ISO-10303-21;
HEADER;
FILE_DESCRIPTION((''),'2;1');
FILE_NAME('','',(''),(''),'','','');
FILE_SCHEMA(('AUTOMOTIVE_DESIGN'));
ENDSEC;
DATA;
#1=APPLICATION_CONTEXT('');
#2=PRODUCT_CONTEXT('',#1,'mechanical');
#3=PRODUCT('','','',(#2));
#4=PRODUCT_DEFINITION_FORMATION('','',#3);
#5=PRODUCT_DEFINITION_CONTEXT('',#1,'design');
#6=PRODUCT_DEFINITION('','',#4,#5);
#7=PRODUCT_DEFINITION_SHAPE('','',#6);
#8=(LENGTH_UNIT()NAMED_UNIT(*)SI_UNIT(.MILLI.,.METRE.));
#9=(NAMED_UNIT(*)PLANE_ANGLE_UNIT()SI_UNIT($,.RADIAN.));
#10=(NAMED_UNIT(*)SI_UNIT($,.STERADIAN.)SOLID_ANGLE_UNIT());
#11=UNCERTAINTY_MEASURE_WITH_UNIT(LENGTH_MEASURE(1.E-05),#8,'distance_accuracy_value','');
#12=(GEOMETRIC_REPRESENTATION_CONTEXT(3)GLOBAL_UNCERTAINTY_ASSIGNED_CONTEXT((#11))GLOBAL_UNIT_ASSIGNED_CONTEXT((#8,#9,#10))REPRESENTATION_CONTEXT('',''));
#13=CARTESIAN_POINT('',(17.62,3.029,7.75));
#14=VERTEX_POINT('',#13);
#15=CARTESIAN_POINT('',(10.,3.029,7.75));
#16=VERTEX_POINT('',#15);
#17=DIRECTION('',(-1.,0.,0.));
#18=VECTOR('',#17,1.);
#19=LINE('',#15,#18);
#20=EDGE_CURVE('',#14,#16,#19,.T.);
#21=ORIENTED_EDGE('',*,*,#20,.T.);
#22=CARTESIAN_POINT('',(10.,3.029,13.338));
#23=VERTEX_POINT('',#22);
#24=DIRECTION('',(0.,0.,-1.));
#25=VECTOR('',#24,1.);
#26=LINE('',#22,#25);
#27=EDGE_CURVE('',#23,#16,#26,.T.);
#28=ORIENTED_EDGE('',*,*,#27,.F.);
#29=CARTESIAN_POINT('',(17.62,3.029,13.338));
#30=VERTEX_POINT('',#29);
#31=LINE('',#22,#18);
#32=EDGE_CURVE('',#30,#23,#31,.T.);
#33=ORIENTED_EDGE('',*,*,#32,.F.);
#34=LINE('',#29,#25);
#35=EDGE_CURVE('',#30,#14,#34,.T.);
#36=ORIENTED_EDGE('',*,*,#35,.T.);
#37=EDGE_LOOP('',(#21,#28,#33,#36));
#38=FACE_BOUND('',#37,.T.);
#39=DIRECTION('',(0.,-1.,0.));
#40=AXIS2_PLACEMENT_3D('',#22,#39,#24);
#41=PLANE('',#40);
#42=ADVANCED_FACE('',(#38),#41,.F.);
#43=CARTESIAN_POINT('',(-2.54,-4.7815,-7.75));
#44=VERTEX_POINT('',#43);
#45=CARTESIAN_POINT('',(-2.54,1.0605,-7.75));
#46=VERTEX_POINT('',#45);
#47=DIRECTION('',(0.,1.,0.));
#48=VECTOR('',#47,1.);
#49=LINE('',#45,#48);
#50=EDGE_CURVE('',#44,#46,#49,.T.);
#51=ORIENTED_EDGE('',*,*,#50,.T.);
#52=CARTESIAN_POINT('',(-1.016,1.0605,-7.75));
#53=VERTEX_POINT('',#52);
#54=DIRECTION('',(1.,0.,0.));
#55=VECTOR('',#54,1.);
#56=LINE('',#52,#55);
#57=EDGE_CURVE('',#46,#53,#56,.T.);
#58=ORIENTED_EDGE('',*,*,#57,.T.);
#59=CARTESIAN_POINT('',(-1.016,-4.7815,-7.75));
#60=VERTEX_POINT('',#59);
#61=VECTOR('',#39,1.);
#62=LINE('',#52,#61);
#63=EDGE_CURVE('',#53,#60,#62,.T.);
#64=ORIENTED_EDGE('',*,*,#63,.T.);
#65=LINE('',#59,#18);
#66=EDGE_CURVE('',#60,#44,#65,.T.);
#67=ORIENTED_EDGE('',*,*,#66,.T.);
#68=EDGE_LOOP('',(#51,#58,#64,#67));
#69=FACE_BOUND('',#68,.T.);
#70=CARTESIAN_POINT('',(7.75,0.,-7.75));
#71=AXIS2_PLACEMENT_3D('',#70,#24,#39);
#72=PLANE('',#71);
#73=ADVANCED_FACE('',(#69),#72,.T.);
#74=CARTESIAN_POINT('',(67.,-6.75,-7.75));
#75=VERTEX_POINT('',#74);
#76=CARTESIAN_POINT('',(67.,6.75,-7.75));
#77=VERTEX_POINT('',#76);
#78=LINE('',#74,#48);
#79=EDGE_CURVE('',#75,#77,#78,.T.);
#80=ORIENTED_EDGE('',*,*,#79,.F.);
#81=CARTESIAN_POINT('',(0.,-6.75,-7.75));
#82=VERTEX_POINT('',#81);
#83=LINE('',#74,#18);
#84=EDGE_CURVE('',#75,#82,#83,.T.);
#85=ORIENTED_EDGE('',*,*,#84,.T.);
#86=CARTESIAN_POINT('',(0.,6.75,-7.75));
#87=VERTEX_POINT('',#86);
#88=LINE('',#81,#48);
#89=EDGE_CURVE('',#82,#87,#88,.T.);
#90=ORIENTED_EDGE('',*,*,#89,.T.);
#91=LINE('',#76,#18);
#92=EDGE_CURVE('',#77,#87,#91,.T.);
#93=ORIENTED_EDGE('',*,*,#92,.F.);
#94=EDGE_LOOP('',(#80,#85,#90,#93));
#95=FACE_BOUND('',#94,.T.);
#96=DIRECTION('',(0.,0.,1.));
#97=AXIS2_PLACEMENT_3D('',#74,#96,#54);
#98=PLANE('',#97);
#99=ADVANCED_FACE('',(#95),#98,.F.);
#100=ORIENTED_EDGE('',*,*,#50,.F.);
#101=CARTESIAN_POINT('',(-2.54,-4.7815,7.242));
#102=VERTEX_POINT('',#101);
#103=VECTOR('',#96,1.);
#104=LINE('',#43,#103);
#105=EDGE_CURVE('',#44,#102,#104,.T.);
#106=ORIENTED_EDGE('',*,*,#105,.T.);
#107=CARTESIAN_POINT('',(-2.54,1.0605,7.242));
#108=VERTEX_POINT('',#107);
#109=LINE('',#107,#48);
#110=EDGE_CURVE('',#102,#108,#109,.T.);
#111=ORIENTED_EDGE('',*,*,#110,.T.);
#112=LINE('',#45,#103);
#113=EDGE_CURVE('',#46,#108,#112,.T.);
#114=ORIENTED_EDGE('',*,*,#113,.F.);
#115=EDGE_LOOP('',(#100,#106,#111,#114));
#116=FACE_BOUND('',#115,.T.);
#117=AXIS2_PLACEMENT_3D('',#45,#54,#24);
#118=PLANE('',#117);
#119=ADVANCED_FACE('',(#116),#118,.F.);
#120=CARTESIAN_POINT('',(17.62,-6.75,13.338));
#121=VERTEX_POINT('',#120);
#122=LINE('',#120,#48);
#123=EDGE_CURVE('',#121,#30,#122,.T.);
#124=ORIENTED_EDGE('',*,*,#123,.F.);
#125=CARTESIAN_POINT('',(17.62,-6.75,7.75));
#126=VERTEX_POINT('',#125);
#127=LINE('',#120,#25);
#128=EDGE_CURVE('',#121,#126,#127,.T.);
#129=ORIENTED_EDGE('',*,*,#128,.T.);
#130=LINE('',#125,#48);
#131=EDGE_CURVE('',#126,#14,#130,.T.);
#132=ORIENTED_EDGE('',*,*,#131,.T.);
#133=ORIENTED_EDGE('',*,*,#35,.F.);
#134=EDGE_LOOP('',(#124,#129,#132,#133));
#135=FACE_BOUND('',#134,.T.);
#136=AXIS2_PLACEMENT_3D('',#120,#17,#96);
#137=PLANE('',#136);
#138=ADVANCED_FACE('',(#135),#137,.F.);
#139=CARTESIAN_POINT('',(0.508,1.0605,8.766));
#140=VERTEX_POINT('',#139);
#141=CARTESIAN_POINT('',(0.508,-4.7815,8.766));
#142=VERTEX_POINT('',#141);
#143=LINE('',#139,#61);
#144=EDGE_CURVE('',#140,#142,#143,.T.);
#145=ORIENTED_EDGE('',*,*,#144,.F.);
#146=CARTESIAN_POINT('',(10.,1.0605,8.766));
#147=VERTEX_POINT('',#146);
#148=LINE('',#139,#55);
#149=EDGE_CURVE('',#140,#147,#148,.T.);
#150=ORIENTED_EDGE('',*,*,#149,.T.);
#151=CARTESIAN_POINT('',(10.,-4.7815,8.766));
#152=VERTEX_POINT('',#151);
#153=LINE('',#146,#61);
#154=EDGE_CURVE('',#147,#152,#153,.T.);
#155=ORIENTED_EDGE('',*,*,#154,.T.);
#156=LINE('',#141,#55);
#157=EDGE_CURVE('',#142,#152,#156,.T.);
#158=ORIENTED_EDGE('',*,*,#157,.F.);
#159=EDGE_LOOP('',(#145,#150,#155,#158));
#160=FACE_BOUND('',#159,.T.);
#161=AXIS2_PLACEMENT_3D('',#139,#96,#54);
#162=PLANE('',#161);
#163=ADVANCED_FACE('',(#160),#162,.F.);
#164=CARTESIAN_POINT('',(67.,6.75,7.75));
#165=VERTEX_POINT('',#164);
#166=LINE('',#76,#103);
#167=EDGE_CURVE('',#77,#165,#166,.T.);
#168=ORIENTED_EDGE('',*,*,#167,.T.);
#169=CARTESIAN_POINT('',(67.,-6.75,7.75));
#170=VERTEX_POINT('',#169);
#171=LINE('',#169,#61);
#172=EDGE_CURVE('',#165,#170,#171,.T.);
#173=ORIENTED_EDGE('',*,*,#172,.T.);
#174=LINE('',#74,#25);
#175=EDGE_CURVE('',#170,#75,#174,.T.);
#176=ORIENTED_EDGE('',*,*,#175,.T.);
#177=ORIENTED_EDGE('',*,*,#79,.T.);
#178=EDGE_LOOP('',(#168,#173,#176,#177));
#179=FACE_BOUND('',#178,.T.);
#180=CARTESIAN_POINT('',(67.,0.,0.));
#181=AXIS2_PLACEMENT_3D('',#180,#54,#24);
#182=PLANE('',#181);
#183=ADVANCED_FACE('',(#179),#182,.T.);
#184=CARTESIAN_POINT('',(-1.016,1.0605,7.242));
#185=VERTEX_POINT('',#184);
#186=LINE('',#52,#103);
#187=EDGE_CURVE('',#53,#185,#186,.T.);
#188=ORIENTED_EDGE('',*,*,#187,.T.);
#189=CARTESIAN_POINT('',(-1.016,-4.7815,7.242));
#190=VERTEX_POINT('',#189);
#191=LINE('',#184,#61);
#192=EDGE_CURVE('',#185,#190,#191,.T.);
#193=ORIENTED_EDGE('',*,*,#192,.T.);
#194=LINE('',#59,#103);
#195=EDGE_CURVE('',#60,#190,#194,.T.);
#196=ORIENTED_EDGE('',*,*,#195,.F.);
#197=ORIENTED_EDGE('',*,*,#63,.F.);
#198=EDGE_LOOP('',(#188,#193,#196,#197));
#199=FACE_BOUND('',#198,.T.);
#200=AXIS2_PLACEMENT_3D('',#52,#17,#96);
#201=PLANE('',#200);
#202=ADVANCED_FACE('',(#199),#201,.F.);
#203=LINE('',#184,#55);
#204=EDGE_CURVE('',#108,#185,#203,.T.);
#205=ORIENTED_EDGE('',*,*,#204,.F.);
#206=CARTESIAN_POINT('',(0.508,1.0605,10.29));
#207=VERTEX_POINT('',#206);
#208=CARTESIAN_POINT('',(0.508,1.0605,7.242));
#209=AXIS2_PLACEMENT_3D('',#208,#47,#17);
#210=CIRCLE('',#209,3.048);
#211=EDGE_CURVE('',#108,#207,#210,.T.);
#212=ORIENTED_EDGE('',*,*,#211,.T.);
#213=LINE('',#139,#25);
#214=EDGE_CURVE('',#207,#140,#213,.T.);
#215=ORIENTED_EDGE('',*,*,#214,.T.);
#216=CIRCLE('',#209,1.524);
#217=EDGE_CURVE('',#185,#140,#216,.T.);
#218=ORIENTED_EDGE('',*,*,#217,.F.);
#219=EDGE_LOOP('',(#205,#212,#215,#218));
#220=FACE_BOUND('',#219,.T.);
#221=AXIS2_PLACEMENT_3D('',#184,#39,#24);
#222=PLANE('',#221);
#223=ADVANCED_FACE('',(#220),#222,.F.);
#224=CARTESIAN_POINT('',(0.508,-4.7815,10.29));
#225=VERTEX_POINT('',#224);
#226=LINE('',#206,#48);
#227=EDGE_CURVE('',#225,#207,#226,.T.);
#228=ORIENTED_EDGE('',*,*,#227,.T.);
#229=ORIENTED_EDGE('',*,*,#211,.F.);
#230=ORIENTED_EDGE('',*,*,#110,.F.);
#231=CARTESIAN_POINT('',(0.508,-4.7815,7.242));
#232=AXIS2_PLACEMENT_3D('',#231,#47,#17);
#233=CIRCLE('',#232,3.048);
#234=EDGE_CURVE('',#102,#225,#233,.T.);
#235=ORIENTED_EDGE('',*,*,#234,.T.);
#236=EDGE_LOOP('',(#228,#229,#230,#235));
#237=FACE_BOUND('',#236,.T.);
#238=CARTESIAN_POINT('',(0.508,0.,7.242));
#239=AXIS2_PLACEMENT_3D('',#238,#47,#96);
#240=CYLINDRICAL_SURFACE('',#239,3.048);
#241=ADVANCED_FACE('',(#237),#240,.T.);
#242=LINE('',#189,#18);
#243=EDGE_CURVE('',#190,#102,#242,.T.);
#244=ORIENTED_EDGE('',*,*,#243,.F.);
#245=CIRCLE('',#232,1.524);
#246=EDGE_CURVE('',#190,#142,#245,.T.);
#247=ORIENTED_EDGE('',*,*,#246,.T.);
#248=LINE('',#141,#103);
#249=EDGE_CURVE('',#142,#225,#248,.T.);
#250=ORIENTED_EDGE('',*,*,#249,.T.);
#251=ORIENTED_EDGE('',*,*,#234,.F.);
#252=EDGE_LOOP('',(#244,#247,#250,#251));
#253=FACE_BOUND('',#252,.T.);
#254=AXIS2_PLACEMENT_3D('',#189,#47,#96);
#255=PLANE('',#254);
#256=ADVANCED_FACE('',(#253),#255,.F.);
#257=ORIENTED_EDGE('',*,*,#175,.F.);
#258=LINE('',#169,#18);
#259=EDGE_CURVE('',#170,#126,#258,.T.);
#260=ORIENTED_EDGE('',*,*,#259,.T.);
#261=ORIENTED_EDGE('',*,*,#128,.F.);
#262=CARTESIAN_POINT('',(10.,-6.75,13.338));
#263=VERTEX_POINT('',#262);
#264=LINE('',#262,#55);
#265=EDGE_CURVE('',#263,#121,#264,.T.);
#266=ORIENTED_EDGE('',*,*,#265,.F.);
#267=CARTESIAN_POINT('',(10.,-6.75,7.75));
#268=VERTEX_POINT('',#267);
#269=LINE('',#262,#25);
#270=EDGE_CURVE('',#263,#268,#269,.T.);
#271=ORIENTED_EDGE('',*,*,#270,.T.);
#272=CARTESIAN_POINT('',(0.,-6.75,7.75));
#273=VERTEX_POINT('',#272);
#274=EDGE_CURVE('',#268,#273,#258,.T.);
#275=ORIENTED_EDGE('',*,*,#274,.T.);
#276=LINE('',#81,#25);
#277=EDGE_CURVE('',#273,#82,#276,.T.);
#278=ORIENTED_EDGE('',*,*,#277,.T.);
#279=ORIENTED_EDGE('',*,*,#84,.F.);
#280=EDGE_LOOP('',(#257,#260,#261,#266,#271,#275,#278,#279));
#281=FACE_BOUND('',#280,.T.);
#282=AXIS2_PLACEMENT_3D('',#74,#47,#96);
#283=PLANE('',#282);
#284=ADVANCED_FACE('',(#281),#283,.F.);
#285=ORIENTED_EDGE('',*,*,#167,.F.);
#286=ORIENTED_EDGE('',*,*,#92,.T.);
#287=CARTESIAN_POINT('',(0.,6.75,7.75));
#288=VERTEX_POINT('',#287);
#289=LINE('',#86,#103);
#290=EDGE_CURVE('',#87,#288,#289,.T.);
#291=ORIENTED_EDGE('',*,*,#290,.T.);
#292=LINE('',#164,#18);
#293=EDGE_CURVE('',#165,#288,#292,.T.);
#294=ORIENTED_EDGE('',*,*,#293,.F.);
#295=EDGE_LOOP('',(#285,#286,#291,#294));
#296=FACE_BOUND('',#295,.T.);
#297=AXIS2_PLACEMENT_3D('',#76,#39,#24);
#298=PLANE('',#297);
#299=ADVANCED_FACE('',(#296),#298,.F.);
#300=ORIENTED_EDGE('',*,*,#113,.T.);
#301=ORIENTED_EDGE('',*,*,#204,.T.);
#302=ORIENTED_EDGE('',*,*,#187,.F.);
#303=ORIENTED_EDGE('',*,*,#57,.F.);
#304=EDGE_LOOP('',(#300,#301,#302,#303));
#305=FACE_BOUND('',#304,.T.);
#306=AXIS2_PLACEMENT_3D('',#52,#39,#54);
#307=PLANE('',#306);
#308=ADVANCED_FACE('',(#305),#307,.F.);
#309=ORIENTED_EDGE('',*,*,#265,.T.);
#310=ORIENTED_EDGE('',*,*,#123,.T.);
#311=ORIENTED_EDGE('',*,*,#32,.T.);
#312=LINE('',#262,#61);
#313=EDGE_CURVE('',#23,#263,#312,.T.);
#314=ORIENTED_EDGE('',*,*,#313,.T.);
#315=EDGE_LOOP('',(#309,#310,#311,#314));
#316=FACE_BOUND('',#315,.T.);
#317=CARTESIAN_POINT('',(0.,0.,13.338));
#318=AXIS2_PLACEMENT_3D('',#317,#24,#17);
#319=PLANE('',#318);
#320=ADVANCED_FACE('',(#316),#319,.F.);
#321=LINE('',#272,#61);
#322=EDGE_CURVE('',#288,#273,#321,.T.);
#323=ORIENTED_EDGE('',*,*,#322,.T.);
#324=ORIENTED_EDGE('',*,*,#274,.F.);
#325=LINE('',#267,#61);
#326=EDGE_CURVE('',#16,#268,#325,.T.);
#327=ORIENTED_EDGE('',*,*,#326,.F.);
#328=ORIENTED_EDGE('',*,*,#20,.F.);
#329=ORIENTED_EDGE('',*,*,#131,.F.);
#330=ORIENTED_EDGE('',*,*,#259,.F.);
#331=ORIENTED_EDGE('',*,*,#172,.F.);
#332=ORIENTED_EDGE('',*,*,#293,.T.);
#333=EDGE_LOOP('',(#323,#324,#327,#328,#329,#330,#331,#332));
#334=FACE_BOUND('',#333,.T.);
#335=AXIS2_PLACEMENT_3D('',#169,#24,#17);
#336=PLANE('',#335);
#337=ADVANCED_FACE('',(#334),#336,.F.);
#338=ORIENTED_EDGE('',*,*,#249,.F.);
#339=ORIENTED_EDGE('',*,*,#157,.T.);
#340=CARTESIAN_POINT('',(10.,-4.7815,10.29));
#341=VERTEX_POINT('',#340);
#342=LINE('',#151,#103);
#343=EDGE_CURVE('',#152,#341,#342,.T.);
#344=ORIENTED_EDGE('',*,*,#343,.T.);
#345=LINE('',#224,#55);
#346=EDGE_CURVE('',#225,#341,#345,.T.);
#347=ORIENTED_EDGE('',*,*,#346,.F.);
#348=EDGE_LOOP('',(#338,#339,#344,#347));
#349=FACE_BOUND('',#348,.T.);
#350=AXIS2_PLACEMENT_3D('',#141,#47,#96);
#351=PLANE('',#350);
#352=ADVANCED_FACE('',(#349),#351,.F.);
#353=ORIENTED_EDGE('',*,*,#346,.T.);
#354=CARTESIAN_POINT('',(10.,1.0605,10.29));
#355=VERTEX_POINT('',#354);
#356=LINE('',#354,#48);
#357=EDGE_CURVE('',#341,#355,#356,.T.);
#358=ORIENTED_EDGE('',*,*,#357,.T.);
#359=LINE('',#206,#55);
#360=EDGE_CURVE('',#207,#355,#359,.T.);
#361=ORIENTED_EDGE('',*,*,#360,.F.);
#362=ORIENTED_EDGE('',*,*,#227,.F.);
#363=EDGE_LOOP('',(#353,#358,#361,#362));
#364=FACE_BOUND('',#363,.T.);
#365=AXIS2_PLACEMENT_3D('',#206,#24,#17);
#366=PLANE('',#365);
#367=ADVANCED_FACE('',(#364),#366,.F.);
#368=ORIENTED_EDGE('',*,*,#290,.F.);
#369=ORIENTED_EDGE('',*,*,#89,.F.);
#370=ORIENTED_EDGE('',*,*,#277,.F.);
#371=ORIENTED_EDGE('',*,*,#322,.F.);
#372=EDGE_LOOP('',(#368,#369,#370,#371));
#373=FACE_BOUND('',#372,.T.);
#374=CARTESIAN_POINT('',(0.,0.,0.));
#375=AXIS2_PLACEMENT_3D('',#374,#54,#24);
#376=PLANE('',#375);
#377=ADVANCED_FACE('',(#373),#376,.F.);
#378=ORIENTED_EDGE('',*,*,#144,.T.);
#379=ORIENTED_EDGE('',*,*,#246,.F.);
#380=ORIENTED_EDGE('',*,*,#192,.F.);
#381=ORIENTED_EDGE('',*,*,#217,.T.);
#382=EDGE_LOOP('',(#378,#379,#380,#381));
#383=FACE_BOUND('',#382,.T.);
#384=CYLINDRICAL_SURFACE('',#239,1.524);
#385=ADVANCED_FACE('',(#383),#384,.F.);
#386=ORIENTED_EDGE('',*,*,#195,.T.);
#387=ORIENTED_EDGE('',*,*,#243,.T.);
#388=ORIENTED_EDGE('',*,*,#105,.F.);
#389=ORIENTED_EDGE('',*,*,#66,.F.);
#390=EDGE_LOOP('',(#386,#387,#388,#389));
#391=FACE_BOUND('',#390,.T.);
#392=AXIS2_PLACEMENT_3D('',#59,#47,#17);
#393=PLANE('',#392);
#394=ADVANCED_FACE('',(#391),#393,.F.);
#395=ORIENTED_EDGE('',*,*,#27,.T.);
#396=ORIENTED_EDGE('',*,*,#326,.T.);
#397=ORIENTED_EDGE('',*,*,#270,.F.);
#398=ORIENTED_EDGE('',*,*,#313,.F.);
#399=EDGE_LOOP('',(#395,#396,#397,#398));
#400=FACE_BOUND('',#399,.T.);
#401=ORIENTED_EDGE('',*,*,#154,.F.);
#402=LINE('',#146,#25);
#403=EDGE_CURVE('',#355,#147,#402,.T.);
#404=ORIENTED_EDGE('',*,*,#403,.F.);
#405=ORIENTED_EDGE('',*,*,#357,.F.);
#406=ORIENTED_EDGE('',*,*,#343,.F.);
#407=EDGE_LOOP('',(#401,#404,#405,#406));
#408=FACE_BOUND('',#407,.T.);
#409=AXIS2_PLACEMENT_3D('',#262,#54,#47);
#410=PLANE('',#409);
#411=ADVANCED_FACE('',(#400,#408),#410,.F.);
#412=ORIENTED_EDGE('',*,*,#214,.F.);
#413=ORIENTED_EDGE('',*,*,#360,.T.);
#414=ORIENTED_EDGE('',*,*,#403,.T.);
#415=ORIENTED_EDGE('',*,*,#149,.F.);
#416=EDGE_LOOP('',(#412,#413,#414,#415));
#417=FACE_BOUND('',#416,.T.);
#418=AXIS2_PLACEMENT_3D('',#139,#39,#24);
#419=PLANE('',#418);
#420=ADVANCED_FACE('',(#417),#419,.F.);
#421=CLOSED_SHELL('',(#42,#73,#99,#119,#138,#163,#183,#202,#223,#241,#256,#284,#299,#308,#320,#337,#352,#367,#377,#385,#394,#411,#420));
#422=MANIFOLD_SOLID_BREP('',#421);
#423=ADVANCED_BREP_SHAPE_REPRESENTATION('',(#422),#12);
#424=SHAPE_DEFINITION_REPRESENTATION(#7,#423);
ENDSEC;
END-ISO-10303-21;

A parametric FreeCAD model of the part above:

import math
import FreeCAD as App
import Part
import Sketcher
from FreeCAD import Vector
Q = App.Units.Quantity


def add_polygon(sketch, points):
    """Adds a closed chain of lines whose ends are joined by coincident constraints."""
    first, n = sketch.GeometryCount, len(points)
    for a, b in zip(points, points[1:] + points[:1]):
        sketch.addGeometry(Part.LineSegment(App.Vector(*a, 0), App.Vector(*b, 0)), False)
    for i in range(n):
        sketch.addConstraint(Sketcher.Constraint("Coincident", first + i, 2, first + (i + 1) % n, 1))

doc = App.newDocument("Part")
body = doc.addObject("PartDesign::Body", "Body")

# Sketch on YZ plane
sketch1 = body.newObject("Sketcher::SketchObject", "Sketch")
sketch1.AttachmentSupport = (doc.getObject("YZ_Plane"), [""])
sketch1.MapMode = "FlatFace"
add_polygon(sketch1, [(6.75, 7.75), (-6.75, 7.75), (-6.75, -7.75), (6.75, -7.75)])  # lines 0-3
sketch1.addConstraint(Sketcher.Constraint("Horizontal", 0))
sketch1.addConstraint(Sketcher.Constraint("Vertical", 1))
sketch1.addConstraint(Sketcher.Constraint("Horizontal", 2))
sketch1.addConstraint(Sketcher.Constraint("Vertical", 3))
sketch1.addConstraint(Sketcher.Constraint("Symmetric", 0, 2, 2, 2, -1, 1))
sketch1.addConstraint(Sketcher.Constraint("DistanceX", 0, 2, 0, 1, 13.5))
sketch1.addConstraint(Sketcher.Constraint("DistanceY", 1, 2, 1, 1, 15.5))
pad1 = body.newObject("PartDesign::Pad", "Pad")
pad1.Profile = sketch1
pad1.Length = 67

# Sketch on XY plane
sketch2 = body.newObject("Sketcher::SketchObject", "Sketch001")
sketch2.AttachmentSupport = (doc.getObject("XY_Plane"), [""])
sketch2.MapMode = "FlatFace"
sketch2.AttachmentOffset = App.Placement(Vector(0, 0, 7.75), App.Rotation())
add_polygon(sketch2, [(10, 3.029), (10, -6.75), (17.62, -6.75), (17.62, 3.029)])  # lines 0-3
sketch2.addConstraint(Sketcher.Constraint("Vertical", 0))
sketch2.addConstraint(Sketcher.Constraint("Horizontal", 1))
sketch2.addConstraint(Sketcher.Constraint("Vertical", 2))
sketch2.addConstraint(Sketcher.Constraint("Horizontal", 3))
sketch2.addConstraint(Sketcher.Constraint("DistanceX", 1, 1, 1, 2, Q("0.3 in")))
sketch2.addConstraint(Sketcher.Constraint("DistanceY", 0, 2, 0, 1, Q("0.385 in")))
sketch2.addConstraint(Sketcher.Constraint("DistanceX", -1, 1, 0, 2, 10.0))
sketch2.addConstraint(Sketcher.Constraint("DistanceY", 0, 2, -1, 1, 6.75))
pad2 = body.newObject("PartDesign::Pad", "Pad001")
pad2.Profile = sketch2
pad2.Length = Q("0.22 in")

# Sketch on YZ plane
sketch3 = body.newObject("Sketcher::SketchObject", "Sketch002")
sketch3.AttachmentSupport = (doc.getObject("YZ_Plane"), [""])
sketch3.MapMode = "FlatFace"
sketch3.AttachmentOffset = App.Placement(Vector(0, 0, 10), App.Rotation())
add_polygon(sketch3, [(1.0605, 8.766), (-4.7815, 8.766), (-4.7815, 10.29), (1.0605, 10.29)])  # lines 0-3
sketch3.addConstraint(Sketcher.Constraint("Horizontal", 0))
sketch3.addConstraint(Sketcher.Constraint("Vertical", 1))
sketch3.addConstraint(Sketcher.Constraint("Horizontal", 2))
sketch3.addConstraint(Sketcher.Constraint("Vertical", 3))
sketch3.addConstraint(Sketcher.Constraint("DistanceX", 0, 2, 0, 1, Q("0.23 in")))
sketch3.addConstraint(Sketcher.Constraint("DistanceY", 1, 1, 1, 2, Q("0.06 in")))
sketch3.addConstraint(Sketcher.Constraint("DistanceX", 0, 2, -1, 1, 4.7815))
sketch3.addConstraint(Sketcher.Constraint("DistanceY", -1, 1, 0, 2, 8.766))

# Sketch on XZ plane
sketch4 = body.newObject("Sketcher::SketchObject", "Sketch003")
sketch4.AttachmentSupport = (doc.getObject("XZ_Plane"), [""])
sketch4.MapMode = "FlatFace"
sketch4.addGeometry(Part.LineSegment(Vector(-0.762, -7.75, 0), Vector(-0.762, 7.242, 0)), False)
sketch4.addGeometry(Part.ArcOfCircle(Part.Circle(Vector(0.508, 7.242, 0), Vector(0, 0, 1), 1.27), math.radians(90), math.radians(180)), False)
sketch4.addGeometry(Part.LineSegment(Vector(0.508, 8.512, 0), Vector(10, 8.512, 0)), False)
sketch4.addConstraint(Sketcher.Constraint("Tangent", 0, 2, 1, 2))
sketch4.addConstraint(Sketcher.Constraint("Tangent", 1, 1, 2, 1))
sketch4.addConstraint(Sketcher.Constraint("Vertical", 0))
sketch4.addConstraint(Sketcher.Constraint("Horizontal", 2))
sketch4.addConstraint(Sketcher.Constraint("Radius", 1, Q("0.05 in")))
sketch4.addConstraint(Sketcher.Constraint("DistanceX", -1, 1, 1, 3, Q("0.02 in")))
sketch4.addConstraint(Sketcher.Constraint("DistanceX", 2, 1, 2, 2, 9.492))
sketch4.addConstraint(Sketcher.Constraint("DistanceY", 0, 1, 0, 2, 14.992))
sketch4.addConstraint(Sketcher.Constraint("DistanceY", -1, 1, 1, 3, 7.242))
doc.recompute()

additivepipe = body.newObject("PartDesign::AdditivePipe", "AdditivePipe")
additivepipe.Profile = sketch3
additivepipe.Spine = (sketch4, ["Edge1", "Edge2", "Edge3"])

doc.recompute()
